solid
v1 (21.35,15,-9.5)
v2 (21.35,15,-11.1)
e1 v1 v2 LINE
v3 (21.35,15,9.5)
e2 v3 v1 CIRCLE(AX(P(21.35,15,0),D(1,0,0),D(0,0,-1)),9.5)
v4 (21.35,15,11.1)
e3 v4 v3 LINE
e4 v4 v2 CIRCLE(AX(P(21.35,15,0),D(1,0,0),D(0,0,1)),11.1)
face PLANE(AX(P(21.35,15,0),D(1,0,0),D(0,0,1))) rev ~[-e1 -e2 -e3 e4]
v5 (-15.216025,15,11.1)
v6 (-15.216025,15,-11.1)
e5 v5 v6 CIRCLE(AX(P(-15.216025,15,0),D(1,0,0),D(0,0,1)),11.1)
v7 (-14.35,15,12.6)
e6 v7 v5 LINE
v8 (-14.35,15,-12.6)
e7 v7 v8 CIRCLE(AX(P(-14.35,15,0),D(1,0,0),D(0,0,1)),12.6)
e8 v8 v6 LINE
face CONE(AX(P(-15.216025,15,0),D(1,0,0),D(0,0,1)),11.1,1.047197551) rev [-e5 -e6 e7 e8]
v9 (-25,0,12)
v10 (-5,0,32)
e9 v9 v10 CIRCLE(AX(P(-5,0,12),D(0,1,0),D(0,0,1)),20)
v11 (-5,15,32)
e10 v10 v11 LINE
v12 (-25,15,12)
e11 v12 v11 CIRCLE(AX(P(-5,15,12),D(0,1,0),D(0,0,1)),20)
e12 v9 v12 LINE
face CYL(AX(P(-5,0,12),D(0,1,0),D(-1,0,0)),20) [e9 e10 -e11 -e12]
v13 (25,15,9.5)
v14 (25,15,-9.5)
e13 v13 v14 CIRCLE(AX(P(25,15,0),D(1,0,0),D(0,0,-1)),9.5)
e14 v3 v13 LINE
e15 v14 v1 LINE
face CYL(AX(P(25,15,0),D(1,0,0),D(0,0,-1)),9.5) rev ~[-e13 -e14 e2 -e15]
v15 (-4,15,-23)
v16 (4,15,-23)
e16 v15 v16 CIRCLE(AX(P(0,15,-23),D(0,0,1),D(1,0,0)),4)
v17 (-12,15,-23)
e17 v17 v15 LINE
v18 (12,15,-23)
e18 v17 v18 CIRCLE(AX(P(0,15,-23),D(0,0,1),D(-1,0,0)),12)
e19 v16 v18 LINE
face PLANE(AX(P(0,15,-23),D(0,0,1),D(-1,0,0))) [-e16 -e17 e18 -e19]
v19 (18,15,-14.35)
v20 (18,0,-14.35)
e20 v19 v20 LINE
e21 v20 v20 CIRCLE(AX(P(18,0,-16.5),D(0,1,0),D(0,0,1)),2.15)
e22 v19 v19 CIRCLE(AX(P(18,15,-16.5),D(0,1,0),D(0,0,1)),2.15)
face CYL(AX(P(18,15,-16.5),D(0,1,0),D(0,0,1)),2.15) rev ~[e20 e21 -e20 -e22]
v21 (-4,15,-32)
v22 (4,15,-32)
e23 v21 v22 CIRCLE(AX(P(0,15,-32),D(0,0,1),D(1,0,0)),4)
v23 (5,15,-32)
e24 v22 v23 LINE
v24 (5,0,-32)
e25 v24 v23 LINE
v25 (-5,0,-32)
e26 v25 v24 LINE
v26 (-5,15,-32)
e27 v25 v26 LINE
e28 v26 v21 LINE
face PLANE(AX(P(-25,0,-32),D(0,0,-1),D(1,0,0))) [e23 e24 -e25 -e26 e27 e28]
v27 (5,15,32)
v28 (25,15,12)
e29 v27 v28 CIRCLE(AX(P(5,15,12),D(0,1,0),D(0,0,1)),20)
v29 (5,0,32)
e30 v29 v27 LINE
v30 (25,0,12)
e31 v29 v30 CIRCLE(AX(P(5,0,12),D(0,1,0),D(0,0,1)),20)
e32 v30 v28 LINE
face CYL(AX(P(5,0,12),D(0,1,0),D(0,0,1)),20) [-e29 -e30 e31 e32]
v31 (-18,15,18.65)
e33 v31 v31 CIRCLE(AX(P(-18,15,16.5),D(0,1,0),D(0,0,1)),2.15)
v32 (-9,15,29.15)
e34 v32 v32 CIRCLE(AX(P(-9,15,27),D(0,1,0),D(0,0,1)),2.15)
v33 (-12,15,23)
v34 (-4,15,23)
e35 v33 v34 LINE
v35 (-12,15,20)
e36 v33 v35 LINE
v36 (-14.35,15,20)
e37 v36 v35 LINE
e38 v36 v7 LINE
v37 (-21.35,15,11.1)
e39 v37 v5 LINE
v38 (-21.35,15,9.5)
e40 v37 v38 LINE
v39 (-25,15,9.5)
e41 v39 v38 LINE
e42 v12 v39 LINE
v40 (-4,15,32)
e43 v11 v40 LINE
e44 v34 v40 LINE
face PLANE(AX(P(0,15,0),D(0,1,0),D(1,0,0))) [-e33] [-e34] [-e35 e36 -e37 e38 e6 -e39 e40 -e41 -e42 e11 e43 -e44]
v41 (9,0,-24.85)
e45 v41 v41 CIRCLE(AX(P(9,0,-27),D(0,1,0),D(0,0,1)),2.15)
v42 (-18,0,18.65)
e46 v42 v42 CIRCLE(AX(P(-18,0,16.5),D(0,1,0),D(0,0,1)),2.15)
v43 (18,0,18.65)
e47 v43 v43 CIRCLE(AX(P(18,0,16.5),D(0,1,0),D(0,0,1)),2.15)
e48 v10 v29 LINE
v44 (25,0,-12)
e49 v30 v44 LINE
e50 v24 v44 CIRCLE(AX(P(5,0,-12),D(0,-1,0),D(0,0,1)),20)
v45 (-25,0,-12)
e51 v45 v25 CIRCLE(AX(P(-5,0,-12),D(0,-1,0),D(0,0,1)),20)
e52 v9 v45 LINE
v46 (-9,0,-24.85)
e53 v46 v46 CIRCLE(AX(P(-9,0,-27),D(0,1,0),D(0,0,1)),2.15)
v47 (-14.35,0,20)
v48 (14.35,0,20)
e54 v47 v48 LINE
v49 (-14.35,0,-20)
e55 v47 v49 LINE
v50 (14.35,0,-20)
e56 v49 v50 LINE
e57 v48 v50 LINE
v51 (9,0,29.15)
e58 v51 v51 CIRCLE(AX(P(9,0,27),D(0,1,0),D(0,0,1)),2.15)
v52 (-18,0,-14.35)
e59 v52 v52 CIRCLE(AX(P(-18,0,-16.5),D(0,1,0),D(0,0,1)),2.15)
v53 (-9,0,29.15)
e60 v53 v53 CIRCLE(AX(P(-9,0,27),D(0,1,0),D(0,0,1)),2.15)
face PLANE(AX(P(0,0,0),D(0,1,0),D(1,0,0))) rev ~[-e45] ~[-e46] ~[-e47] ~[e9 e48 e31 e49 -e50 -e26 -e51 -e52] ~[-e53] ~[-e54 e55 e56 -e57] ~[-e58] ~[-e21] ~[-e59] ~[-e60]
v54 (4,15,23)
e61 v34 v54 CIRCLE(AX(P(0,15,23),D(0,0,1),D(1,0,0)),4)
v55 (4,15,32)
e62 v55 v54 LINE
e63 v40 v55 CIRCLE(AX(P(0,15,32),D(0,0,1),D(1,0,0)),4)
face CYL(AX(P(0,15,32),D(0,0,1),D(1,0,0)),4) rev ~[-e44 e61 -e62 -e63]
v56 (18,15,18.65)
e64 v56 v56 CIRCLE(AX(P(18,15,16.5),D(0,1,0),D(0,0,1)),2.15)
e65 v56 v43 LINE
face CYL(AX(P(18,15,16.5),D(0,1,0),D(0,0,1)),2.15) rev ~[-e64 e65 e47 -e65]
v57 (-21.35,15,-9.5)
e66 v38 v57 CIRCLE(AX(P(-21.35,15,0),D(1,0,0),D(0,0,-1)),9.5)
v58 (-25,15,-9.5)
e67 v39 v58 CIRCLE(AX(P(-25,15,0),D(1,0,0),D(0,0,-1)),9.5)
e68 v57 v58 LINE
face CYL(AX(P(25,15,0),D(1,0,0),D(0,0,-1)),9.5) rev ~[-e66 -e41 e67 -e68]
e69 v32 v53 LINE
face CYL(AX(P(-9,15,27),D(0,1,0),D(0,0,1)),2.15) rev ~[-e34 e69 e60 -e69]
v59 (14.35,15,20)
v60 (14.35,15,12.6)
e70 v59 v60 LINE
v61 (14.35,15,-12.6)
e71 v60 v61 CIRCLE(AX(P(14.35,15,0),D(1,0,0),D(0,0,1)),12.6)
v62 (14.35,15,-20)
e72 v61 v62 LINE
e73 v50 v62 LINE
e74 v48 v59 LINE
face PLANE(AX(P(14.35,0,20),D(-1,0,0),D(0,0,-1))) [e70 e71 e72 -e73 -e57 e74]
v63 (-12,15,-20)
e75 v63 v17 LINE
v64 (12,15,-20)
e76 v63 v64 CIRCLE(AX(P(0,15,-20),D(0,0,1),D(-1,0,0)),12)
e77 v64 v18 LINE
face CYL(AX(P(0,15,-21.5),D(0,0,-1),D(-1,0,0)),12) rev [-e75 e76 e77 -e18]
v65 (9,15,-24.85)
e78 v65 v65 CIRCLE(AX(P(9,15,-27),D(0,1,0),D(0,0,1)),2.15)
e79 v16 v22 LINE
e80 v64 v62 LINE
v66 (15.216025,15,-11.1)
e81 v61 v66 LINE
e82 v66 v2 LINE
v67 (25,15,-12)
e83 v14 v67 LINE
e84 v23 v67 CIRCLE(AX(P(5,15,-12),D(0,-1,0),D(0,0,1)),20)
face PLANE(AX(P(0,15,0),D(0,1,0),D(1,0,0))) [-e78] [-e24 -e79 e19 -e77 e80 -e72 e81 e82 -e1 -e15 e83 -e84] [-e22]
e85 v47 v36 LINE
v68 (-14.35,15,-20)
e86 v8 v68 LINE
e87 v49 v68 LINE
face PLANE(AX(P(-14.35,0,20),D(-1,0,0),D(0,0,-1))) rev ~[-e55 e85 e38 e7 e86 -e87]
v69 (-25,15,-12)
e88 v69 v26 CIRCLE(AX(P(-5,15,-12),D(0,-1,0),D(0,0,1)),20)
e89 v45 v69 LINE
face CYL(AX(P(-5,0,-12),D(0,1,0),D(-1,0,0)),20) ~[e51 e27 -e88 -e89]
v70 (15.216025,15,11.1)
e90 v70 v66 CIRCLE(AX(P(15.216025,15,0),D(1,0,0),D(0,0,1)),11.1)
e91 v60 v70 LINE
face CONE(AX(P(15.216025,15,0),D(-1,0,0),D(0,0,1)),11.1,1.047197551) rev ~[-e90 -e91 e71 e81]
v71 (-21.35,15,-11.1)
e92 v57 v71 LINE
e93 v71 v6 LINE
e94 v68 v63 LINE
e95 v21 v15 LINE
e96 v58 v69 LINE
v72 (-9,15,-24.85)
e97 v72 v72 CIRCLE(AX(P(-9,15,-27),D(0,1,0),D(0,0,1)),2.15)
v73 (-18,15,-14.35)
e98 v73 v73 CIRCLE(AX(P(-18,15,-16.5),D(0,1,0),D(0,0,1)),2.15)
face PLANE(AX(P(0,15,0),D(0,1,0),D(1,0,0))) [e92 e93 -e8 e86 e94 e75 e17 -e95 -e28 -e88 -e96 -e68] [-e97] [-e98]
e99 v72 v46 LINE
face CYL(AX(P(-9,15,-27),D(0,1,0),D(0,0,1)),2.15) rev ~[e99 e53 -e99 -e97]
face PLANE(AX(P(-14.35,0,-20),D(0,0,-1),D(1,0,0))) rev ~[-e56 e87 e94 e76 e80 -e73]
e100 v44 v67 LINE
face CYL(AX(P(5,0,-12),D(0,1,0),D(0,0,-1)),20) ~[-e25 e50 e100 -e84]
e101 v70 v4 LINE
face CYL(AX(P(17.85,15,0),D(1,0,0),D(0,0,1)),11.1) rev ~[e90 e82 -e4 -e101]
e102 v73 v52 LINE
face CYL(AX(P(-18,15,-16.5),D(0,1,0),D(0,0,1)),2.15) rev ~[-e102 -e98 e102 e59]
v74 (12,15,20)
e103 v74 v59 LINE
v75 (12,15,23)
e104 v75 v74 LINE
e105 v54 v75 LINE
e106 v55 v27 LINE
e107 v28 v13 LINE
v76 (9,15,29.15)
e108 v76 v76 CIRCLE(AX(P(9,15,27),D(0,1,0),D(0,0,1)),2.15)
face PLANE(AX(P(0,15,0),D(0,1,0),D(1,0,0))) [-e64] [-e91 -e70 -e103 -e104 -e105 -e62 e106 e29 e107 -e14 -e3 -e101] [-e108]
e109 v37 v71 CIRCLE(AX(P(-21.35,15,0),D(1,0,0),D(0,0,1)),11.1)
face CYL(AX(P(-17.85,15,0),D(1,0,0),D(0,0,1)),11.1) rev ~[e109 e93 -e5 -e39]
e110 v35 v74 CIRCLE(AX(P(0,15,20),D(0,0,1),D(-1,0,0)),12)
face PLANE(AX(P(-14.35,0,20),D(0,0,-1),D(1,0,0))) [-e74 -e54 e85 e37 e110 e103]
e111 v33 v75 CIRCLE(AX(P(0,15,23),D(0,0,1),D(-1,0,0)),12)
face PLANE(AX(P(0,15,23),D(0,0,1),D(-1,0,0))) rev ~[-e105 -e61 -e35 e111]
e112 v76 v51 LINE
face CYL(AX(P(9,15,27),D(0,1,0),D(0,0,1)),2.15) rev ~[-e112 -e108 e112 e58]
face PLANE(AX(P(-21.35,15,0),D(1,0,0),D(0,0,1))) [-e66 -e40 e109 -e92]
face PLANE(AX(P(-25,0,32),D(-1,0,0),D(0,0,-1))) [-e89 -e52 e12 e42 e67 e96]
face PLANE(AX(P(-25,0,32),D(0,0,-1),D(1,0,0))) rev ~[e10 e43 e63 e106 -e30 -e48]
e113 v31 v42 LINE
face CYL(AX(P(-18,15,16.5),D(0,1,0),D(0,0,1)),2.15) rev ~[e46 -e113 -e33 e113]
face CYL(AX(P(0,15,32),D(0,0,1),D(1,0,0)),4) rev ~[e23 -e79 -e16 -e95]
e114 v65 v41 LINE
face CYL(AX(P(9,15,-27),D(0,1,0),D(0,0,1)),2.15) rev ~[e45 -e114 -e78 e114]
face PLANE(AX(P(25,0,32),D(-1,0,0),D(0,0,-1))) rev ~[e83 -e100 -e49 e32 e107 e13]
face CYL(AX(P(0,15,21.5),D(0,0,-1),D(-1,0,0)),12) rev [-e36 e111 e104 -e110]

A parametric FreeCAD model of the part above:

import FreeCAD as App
import Part
import Sketcher
Q = App.Units.Quantity


def edges_at(feature, points):
    """Names of the edges that pass closest to the given points."""
    edges = feature.Shape.Edges
    near = lambda p: min(range(len(edges)), key=lambda i: edges[i].distToShape(Part.Vertex(*p))[0])
    return sorted({f"Edge{near(p) + 1}" for p in points})


def add_polygon(sketch, points):
    """Adds a closed chain of lines whose ends are joined by coincident constraints."""
    first, n = sketch.GeometryCount, len(points)
    for a, b in zip(points, points[1:] + points[:1]):
        sketch.addGeometry(Part.LineSegment(App.Vector(*a, 0), App.Vector(*b, 0)), False)
    for i in range(n):
        sketch.addConstraint(Sketcher.Constraint("Coincident", first + i, 2, first + (i + 1) % n, 1))

doc = App.newDocument("Part")
body = doc.addObject("PartDesign::Body", "Body")

# Sketch on XZ plane
sketch1 = body.newObject("Sketcher::SketchObject", "Sketch")
sketch1.AttachmentSupport = (doc.getObject("XZ_Plane"), [""])
sketch1.MapMode = "FlatFace"
add_polygon(sketch1, [(-25, -32), (-25, 32), (25, 32), (25, -32)])  # lines 0-3
add_polygon(sketch1, [(14, 20), (-14, 20), (-14, -20), (14, -20)])  # lines 4-7
sketch1.addConstraint([
    Sketcher.Constraint("Vertical", 0),
    Sketcher.Constraint("Horizontal", 1),
    Sketcher.Constraint("Vertical", 2),
    Sketcher.Constraint("Horizontal", 3),
    Sketcher.Constraint("Horizontal", 4),
    Sketcher.Constraint("Vertical", 5),
    Sketcher.Constraint("Horizontal", 6),
    Sketcher.Constraint("Vertical", 7),
    Sketcher.Constraint("Symmetric", 0, 2, 2, 2, -1, 1),
    Sketcher.Constraint("Symmetric", 4, 2, 6, 2, -1, 1),
    Sketcher.Constraint("DistanceX", 1, 1, 1, 2, Q("50 mm")),
    Sketcher.Constraint("DistanceY", 0, 1, 0, 2, Q("64 mm")),
    Sketcher.Constraint("DistanceY", 5, 2, 5, 1, Q("40 mm")),
    Sketcher.Constraint("DistanceX", 4, 2, 4, 1, Q("28.7 mm")),
])
pad1 = body.newObject("PartDesign::Pad", "Pad")
pad1.Profile = sketch1
pad1.Length = 15
pad1.Reversed = True

# Sketch on XZ plane
sketch2 = body.newObject("Sketcher::SketchObject", "Sketch001")
sketch2.AttachmentSupport = (doc.getObject("XZ_Plane"), [""])
sketch2.MapMode = "FlatFace"
sketch2.AttachmentOffset = App.Placement(App.Vector(0, 0, -15), App.Rotation())
add_polygon(sketch2, [(14, 0), (14, 11), (21, 11), (21, 0)])  # lines 0-3
add_polygon(sketch2, [(-21, 0), (-21, 11), (-14, 11), (-14, 0)])  # lines 4-7
sketch2.addConstraint([
    Sketcher.Constraint("Vertical", 0),
    Sketcher.Constraint("Horizontal", 1),
    Sketcher.Constraint("Vertical", 2),
    Sketcher.Constraint("Horizontal", 3),
    Sketcher.Constraint("Vertical", 4),
    Sketcher.Constraint("Horizontal", 5),
    Sketcher.Constraint("Vertical", 6),
    Sketcher.Constraint("Horizontal", 7),
    Sketcher.Constraint("Symmetric", 3, 2, 6, 2, -1, 1),
    Sketcher.Constraint("Symmetric", 1, 2, 4, 2, -2),
    Sketcher.Constraint("PointOnObject", 2, 2, -1),
    Sketcher.Constraint("DistanceX", 1, 1, 1, 2, Q("7 mm")),
    Sketcher.Constraint("DistanceY", 0, 1, 0, 2, Q("11.1 mm")),
    Sketcher.Constraint("DistanceX", 4, 2, 0, 2, Q("35.7 mm")),
])
groove = body.newObject("PartDesign::Groove", "Groove")
groove.Profile = sketch2
groove.ReferenceAxis = (sketch2, ["H_Axis"])
groove.Angle = 360

# Sketch on YZ plane
sketch3 = body.newObject("Sketcher::SketchObject", "Sketch002")
sketch3.AttachmentSupport = (doc.getObject("YZ_Plane"), [""])
sketch3.MapMode = "FlatFace"
sketch3.AttachmentOffset = App.Placement(App.Vector(0, 0, 25), App.Rotation())
sketch3.addGeometry(Part.Circle(App.Vector(15, 0, 0), App.Vector(0, 0, 1), 10), False)
sketch3.addConstraint([
    Sketcher.Constraint("PointOnObject", 0, 3, -1),
    Sketcher.Constraint("Diameter", 0, Q("19 mm")),
    Sketcher.Constraint("DistanceX", -1, 1, 0, 3, Q("15 mm")),
])
pocket1 = body.newObject("PartDesign::Pocket", "Pocket")
pocket1.Profile = sketch3
pocket1.Type = "ThroughAll"

# Sketch on XY plane
sketch4 = body.newObject("Sketcher::SketchObject", "Sketch003")
sketch4.AttachmentSupport = (doc.getObject("XY_Plane"), [""])
sketch4.MapMode = "FlatFace"
sketch4.AttachmentOffset = App.Placement(App.Vector(0, 0, 32), App.Rotation())
sketch4.addGeometry(Part.Circle(App.Vector(0, 15, 0), App.Vector(0, 0, 1), 4), False)
sketch4.addConstraint([
    Sketcher.Constraint("PointOnObject", 0, 3, -2),
    Sketcher.Constraint("Diameter", 0, Q("8 mm")),
    Sketcher.Constraint("DistanceY", -1, 1, 0, 3, Q("15 mm")),
])
pocket2 = body.newObject("PartDesign::Pocket", "Pocket001")
pocket2.Profile = sketch4
pocket2.Type = "ThroughAll"

# Sketch on XZ plane
sketch5 = body.newObject("Sketcher::SketchObject", "Sketch004")
sketch5.AttachmentSupport = (doc.getObject("XZ_Plane"), [""])
sketch5.MapMode = "FlatFace"
sketch5.AttachmentOffset = App.Placement(App.Vector(0, 0, -15), App.Rotation())
sketch5.addGeometry([
    Part.Circle(App.Vector(18, -16.5, 0), App.Vector(0, 0, 1), 2.1),  # 0
    Part.Circle(App.Vector(18, 16.5, 0), App.Vector(0, 0, 1), 2.1),  # 1
    Part.Circle(App.Vector(-18, 16.5, 0), App.Vector(0, 0, 1), 2.1),  # 2
    Part.Circle(App.Vector(-18, -16.5, 0), App.Vector(0, 0, 1), 2.1),  # 3
    Part.Circle(App.Vector(9, 27, 0), App.Vector(0, 0, 1), 2.1),  # 4
    Part.Circle(App.Vector(-9, 27, 0), App.Vector(0, 0, 1), 2.1),  # 5
    Part.Circle(App.Vector(-9, -27, 0), App.Vector(0, 0, 1), 2.1),  # 6
    Part.Circle(App.Vector(9, -27, 0), App.Vector(0, 0, 1), 2.1),  # 7
], False)
sketch5.addConstraint([
    Sketcher.Constraint("Equal", 0, 1),
    Sketcher.Constraint("Equal", 1, 2),
    Sketcher.Constraint("Equal", 2, 3),
    Sketcher.Constraint("Equal", 3, 4),
    Sketcher.Constraint("Equal", 4, 5),
    Sketcher.Constraint("Equal", 5, 6),
    Sketcher.Constraint("Equal", 6, 7),
    Sketcher.Constraint("Symmetric", 0, 3, 2, 3, -1, 1),
    Sketcher.Constraint("Symmetric", 1, 3, 3, 3, -1, 1),
    Sketcher.Constraint("Symmetric", 4, 3, 6, 3, -1, 1),
    Sketcher.Constraint("Symmetric", 5, 3, 7, 3, -1, 1),
    Sketcher.Constraint("Symmetric", 1, 3, 2, 3, -2),
    Sketcher.Constraint("Symmetric", 4, 3, 5, 3, -2),
    Sketcher.Constraint("Diameter", 0, Q("4.3 mm")),
    Sketcher.Constraint("DistanceX", -1, 1, 0, 3, Q("18 mm")),
    Sketcher.Constraint("DistanceX", -1, 1, 4, 3, Q("9 mm")),
    Sketcher.Constraint("DistanceY", -1, 1, 4, 3, Q("27 mm")),
    Sketcher.Constraint("DistanceY", 0, 3, 1, 3, Q("33 mm")),
])
pocket3 = body.newObject("PartDesign::Pocket", "Pocket002")
pocket3.Profile = sketch5
pocket3.Type = "ThroughAll"
pocket3.Reversed = True
doc.recompute()

fillet = body.newObject("PartDesign::Fillet", "Fillet")
fillet.Base = (pocket3, edges_at(pocket3, [
    (-25, 7.5, -32),
    (25, 7.5, -32),
    (25, 7.5, 32),
    (-25, 7.5, 32),
]))
fillet.Radius = 20
doc.recompute()

chamfer = body.newObject("PartDesign::Chamfer", "Chamfer")
chamfer.Base = (fillet, edges_at(fillet, [(14.35, 3.9, 0)]))
chamfer.ChamferType = "Two distances"
chamfer.Size = 1.5
chamfer.Size2 = 0.866025
doc.recompute()

chamfer2 = body.newObject("PartDesign::Chamfer", "Chamfer001")
chamfer2.Base = (chamfer, edges_at(chamfer, [(-14.35, 3.9, 0)]))
chamfer2.ChamferType = "Two distances"
chamfer2.Size = 1.5
chamfer2.Size2 = 0.866025

# Sketch on XZ plane
sketch6 = body.newObject("Sketcher::SketchObject", "Sketch005")
sketch6.AttachmentSupport = (doc.getObject("XZ_Plane"), [""])
sketch6.MapMode = "FlatFace"
sketch6.AttachmentOffset = App.Placement(App.Vector(0, 0, -15), App.Rotation())
add_polygon(sketch6, [(-12, 20), (-12, 23), (0, 23), (0, 20)])  # lines 0-3
add_polygon(sketch6, [(-12, -23), (-12, -20), (0, -20), (0, -23)])  # lines 4-7
sketch6.addConstraint([
    Sketcher.Constraint("Vertical", 0),
    Sketcher.Constraint("Horizontal", 1),
    Sketcher.Constraint("Vertical", 2),
    Sketcher.Constraint("Horizontal", 3),
    Sketcher.Constraint("Vertical", 4),
    Sketcher.Constraint("Horizontal", 5),
    Sketcher.Constraint("Vertical", 6),
    Sketcher.Constraint("Horizontal", 7),
    Sketcher.Constraint("Symmetric", 2, 2, 5, 2, -1, 1),
    Sketcher.Constraint("Symmetric", 1, 2, 6, 2, -1),
    Sketcher.Constraint("Vertical", 3, 2, 4, 2),
    Sketcher.Constraint("DistanceX", 1, 1, 1, 2, Q("12 mm")),
    Sketcher.Constraint("DistanceY", 0, 1, 0, 2, Q("3 mm")),
    Sketcher.Constraint("DistanceY", -1, 1, 0, 2, Q("23 mm")),
])
groove2 = body.newObject("PartDesign::Groove", "Groove001")
groove2.Profile = sketch6
groove2.ReferenceAxis = (sketch6, ["V_Axis"])
groove2.Angle = 360

doc.recompute()
